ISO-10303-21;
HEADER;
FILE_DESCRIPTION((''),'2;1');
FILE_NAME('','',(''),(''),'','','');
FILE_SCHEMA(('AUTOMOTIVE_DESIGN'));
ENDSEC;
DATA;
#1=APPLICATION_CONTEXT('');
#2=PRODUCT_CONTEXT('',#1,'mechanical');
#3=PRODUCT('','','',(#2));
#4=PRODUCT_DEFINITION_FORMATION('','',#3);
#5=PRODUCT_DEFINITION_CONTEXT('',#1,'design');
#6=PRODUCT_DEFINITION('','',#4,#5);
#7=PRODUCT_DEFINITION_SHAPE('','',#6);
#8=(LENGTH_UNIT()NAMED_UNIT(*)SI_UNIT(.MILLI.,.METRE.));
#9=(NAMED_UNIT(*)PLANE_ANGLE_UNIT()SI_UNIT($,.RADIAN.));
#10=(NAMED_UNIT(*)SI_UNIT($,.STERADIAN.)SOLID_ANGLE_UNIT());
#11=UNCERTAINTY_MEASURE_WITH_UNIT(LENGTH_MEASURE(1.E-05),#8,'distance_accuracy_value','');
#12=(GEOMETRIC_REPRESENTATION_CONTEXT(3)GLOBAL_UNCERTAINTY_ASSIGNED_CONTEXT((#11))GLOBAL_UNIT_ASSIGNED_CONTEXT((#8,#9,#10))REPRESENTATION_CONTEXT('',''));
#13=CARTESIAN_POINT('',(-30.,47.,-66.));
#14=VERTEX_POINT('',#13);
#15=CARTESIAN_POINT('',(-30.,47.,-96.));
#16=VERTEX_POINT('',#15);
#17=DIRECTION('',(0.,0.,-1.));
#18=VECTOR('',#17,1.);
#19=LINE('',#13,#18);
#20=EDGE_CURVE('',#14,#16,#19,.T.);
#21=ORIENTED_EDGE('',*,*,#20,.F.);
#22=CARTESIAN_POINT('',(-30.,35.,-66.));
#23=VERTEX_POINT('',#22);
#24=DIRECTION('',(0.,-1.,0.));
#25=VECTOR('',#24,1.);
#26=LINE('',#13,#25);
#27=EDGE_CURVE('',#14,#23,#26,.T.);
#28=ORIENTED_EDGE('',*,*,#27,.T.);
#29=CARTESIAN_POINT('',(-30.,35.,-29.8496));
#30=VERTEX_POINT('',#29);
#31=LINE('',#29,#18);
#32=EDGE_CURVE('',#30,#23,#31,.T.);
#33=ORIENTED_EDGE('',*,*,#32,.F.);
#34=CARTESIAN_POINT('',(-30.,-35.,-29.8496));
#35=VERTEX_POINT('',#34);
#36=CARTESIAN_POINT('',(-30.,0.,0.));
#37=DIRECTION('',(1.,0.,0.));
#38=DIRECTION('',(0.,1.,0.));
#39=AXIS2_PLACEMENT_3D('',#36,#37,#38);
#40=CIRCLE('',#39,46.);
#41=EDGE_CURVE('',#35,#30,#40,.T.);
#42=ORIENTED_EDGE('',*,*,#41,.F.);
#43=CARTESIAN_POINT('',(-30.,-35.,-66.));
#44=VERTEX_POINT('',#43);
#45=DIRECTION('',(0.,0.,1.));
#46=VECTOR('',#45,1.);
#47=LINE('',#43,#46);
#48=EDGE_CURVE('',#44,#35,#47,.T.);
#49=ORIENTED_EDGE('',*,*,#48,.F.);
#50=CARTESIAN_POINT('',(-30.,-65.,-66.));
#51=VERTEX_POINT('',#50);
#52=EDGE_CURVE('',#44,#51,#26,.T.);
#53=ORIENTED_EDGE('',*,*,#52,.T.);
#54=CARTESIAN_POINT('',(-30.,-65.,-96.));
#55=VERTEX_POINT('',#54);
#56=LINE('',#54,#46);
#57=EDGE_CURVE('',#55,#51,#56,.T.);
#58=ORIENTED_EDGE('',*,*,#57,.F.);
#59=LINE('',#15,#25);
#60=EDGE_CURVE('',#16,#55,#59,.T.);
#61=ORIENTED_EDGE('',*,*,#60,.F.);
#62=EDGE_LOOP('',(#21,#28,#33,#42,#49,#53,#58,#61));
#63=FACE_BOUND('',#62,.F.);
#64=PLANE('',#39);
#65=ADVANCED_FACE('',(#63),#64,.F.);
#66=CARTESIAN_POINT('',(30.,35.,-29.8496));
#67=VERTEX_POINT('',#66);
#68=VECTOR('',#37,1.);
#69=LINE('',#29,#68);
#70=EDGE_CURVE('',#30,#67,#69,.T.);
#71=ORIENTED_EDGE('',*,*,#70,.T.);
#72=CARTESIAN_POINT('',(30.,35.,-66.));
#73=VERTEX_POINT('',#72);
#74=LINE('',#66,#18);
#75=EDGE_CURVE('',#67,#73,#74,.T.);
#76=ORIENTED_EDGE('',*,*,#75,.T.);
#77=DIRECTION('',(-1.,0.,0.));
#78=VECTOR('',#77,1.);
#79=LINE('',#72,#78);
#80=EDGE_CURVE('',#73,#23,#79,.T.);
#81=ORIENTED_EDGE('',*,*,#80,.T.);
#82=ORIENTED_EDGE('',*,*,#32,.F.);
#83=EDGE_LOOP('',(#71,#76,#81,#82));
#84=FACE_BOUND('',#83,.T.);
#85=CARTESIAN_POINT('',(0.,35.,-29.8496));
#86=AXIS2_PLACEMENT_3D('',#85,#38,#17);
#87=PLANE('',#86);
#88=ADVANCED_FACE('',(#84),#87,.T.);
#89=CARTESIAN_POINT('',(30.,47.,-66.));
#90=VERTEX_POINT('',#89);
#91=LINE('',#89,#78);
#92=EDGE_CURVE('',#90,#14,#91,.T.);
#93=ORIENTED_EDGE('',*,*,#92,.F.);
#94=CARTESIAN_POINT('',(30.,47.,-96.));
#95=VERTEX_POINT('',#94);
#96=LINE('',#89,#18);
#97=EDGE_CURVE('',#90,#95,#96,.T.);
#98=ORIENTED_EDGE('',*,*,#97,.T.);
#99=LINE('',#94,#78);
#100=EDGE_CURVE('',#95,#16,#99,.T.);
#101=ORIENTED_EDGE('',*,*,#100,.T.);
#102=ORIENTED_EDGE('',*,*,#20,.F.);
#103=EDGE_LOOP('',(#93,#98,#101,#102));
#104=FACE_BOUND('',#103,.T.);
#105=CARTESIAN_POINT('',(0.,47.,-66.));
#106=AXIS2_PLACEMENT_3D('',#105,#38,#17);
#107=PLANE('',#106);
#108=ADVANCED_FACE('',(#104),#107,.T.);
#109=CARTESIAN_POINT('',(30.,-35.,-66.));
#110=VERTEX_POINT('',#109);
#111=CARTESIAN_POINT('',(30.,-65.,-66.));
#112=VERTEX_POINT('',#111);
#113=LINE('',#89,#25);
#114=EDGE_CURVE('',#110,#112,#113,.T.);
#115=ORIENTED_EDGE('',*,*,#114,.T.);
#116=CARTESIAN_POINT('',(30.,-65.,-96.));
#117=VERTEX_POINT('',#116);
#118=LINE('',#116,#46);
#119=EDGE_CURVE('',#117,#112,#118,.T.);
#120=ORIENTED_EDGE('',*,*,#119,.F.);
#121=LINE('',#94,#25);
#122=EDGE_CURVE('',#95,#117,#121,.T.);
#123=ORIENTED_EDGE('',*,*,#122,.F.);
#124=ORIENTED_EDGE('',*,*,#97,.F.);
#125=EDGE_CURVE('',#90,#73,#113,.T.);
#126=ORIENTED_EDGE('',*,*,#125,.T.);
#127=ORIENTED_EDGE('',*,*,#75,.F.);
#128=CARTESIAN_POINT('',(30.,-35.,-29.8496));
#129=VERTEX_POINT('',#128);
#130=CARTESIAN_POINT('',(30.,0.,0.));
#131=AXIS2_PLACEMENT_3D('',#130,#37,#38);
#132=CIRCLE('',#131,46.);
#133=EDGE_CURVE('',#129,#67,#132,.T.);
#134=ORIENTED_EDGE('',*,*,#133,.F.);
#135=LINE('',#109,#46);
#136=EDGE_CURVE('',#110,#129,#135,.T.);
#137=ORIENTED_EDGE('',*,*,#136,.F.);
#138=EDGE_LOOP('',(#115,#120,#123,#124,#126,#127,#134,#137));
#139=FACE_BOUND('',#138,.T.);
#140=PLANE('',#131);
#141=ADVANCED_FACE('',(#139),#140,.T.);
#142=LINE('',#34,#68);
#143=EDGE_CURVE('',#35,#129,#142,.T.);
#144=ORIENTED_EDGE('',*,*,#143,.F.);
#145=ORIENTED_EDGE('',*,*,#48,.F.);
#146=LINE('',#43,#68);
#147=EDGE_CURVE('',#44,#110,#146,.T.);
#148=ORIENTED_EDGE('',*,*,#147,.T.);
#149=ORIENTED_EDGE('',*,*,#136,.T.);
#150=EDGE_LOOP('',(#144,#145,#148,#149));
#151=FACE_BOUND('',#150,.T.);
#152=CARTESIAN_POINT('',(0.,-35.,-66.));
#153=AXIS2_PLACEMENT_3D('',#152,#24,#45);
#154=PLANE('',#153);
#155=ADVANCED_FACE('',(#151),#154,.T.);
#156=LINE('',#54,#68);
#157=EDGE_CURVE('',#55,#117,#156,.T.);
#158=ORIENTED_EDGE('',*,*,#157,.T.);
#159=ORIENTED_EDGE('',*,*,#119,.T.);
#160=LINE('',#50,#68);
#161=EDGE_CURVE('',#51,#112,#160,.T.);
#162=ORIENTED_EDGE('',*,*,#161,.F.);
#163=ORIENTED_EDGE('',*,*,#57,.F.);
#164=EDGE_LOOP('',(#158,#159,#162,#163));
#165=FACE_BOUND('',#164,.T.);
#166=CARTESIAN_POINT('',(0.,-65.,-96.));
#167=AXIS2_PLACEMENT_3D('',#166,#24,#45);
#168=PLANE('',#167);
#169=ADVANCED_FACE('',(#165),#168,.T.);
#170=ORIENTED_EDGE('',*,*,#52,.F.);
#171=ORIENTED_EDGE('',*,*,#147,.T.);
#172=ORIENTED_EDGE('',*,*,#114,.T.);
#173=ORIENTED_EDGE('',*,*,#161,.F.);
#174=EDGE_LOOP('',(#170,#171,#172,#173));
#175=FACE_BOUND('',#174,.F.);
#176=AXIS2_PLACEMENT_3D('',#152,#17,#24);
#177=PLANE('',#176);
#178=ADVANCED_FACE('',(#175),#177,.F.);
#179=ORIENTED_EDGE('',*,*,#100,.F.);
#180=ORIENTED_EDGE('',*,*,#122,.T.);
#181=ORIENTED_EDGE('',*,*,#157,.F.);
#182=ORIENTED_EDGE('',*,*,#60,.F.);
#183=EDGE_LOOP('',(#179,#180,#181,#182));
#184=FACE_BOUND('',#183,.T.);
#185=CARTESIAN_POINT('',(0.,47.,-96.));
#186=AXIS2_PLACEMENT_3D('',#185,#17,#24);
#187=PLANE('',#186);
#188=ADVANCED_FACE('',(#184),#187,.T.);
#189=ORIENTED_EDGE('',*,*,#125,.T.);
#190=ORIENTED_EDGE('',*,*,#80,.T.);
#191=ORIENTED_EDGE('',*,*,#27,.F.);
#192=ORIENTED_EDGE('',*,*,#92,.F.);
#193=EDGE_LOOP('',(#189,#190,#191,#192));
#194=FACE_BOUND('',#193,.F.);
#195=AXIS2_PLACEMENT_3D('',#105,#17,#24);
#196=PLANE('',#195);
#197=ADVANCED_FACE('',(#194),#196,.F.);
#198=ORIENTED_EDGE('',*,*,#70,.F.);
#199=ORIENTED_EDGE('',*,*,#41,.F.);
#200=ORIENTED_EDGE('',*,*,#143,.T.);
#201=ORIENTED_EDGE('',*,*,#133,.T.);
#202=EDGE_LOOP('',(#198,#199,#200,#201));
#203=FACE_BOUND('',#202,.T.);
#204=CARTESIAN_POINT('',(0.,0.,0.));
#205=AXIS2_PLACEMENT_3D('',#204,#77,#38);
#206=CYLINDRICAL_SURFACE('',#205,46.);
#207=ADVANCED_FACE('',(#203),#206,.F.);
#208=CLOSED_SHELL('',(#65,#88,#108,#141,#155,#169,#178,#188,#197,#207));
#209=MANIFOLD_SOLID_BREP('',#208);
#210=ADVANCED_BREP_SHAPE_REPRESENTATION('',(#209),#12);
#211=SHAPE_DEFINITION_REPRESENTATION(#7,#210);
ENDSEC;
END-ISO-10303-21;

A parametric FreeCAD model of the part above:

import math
import FreeCAD as App
import Part
import Sketcher

V = App.Vector

doc = App.newDocument("Part")
params = doc.addObject("Spreadsheet::Sheet", "Params")
for row, (alias, value) in enumerate([
    ("sketch1_radius", "46 mm"),
    ("sketch1_width", "30 mm"),
    ("sketch1_width2", "12 mm"),
    ("pad1_length", "60 mm"),
], start=1):
    params.set(f"A{row}", alias)
    params.set(f"B{row}", "=" + value)
    params.setAlias(f"B{row}", alias)

body = doc.addObject("PartDesign::Body", "Body")

sketch1 = body.newObject("Sketcher::SketchObject", "Sketch")
sketch1.AttachmentSupport = (doc.getObject("YZ_Plane"), [""])
sketch1.MapMode = "FlatFace"
sketch1.addGeometry([
    Part.LineSegment(V(35, -66, 0), V(35, -30, 0)),
    Part.ArcOfCircle(Part.Circle(V(0, 0, 0), V(0, 0, 1), 46), math.radians(-140), math.radians(-40)),
    Part.LineSegment(V(-35, -30, 0), V(-35, -66, 0)),
    Part.LineSegment(V(-35, -66, 0), V(-65, -66, 0)),
    Part.LineSegment(V(-65, -66, 0), V(-65, -96, 0)),
    Part.LineSegment(V(-65, -96, 0), V(47, -96, 0)),
    Part.LineSegment(V(47, -96, 0), V(47, -66, 0)),
    Part.LineSegment(V(47, -66, 0), V(35, -66, 0)),
], False)
sketch1.addConstraint([
    Sketcher.Constraint("Coincident", 0, 2, 1, 2),
    Sketcher.Constraint("Coincident", 1, 1, 2, 1),
    Sketcher.Constraint("Coincident", 2, 2, 3, 1),
    Sketcher.Constraint("Coincident", 3, 2, 4, 1),
    Sketcher.Constraint("Coincident", 4, 2, 5, 1),
    Sketcher.Constraint("Coincident", 5, 2, 6, 1),
    Sketcher.Constraint("Coincident", 6, 2, 7, 1),
    Sketcher.Constraint("Coincident", 7, 2, 0, 1),
    Sketcher.Constraint("Vertical", 0),
    Sketcher.Constraint("Vertical", 2),
    Sketcher.Constraint("Horizontal", 3),
    Sketcher.Constraint("Vertical", 4),
    Sketcher.Constraint("Horizontal", 5),
    Sketcher.Constraint("Vertical", 6),
    Sketcher.Constraint("Horizontal", 7),
    Sketcher.Constraint("Coincident", 1, 3, -1, 1),
    Sketcher.Constraint("Symmetric", 2, 2, 7, 2, -2),
    Sketcher.Constraint("Equal", 3, 4),
    Sketcher.Constraint("Radius", 1, 46.0),
    Sketcher.Constraint("DistanceX", 3, 2, 3, 1, 30.0),
    Sketcher.Constraint("DistanceX", 7, 2, 7, 1, 12.0),
    Sketcher.Constraint("DistanceX", 3, 2, -1, 1, 65.0),
    Sketcher.Constraint("DistanceY", 4, 2, -1, 1, 96.0),
])
sketch1.setExpression("Constraints[18]", "Params.sketch1_radius")
sketch1.setExpression("Constraints[19]", "Params.sketch1_width")
sketch1.setExpression("Constraints[20]", "Params.sketch1_width2")
pad1 = body.newObject("PartDesign::Pad", "Pad")
pad1.Profile = sketch1
pad1.setExpression("Length", "Params.pad1_length")
pad1.Midplane = True

doc.recompute()
